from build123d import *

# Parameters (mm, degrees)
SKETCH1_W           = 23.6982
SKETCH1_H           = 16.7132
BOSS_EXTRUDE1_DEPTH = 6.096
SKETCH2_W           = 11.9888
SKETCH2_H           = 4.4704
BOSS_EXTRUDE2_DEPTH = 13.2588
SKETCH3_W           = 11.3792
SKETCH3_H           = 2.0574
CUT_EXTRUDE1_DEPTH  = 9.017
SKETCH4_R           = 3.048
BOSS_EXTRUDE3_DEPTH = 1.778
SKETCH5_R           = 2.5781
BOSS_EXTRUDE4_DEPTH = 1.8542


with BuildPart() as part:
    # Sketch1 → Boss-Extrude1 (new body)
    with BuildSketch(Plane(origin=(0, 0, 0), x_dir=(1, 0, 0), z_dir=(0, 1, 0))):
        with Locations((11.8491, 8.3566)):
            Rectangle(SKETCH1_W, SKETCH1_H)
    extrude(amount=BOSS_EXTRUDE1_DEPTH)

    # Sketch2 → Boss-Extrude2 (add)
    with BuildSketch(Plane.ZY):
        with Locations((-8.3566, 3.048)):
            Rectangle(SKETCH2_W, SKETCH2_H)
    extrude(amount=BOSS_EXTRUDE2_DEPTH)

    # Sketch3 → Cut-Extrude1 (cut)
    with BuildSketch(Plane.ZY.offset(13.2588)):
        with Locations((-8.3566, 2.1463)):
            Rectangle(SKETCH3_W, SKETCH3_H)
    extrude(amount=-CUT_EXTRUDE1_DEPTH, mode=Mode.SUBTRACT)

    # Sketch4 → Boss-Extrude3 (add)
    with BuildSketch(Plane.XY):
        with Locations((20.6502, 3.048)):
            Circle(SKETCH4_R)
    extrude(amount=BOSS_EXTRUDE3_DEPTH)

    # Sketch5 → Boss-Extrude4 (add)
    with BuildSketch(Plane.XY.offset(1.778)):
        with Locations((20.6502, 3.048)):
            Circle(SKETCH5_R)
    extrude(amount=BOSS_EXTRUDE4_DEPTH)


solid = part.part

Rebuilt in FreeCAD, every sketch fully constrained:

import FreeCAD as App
import Part
import Sketcher

V = App.Vector
Q = App.Units.Quantity

doc = App.newDocument("Part")
body = doc.addObject("PartDesign::Body", "Body")

sketch1 = body.newObject("Sketcher::SketchObject", "Sketch")
sketch1.AttachmentSupport = (doc.getObject("XZ_Plane"), [""])
sketch1.MapMode = "FlatFace"
sketch1.addGeometry(Part.LineSegment(V(0, -17, 0), V(0, 0, 0)), False)
sketch1.addGeometry(Part.LineSegment(V(0, 0, 0), V(24, 0, 0)), False)
sketch1.addGeometry(Part.LineSegment(V(24, 0, 0), V(24, -17, 0)), False)
sketch1.addGeometry(Part.LineSegment(V(24, -17, 0), V(0, -17, 0)), False)
sketch1.addConstraint(Sketcher.Constraint("Coincident", 0, 2, 1, 1))
sketch1.addConstraint(Sketcher.Constraint("Coincident", 1, 2, 2, 1))
sketch1.addConstraint(Sketcher.Constraint("Coincident", 2, 2, 3, 1))
sketch1.addConstraint(Sketcher.Constraint("Coincident", 3, 2, 0, 1))
sketch1.addConstraint(Sketcher.Constraint("Vertical", 0))
sketch1.addConstraint(Sketcher.Constraint("Horizontal", 1))
sketch1.addConstraint(Sketcher.Constraint("Vertical", 2))
sketch1.addConstraint(Sketcher.Constraint("Horizontal", 3))
sketch1.addConstraint(Sketcher.Constraint("Coincident", 0, 2, -1, 1))
sketch1.addConstraint(Sketcher.Constraint("DistanceX", 1, 1, 1, 2, Q("0.933 in")))
sketch1.addConstraint(Sketcher.Constraint("DistanceY", 0, 1, 0, 2, Q("0.658 in")))
pad1 = body.newObject("PartDesign::Pad", "Pad")
pad1.Profile = sketch1
pad1.Length = Q("0.24 in")
pad1.Reversed = True

sketch2 = body.newObject("Sketcher::SketchObject", "Sketch001")
sketch2.AttachmentSupport = (doc.getObject("YZ_Plane"), [""])
sketch2.MapMode = "FlatFace"
sketch2.addGeometry(Part.LineSegment(V(5.3, -14.4, 0), V(0.8, -14.4, 0)), False)
sketch2.addGeometry(Part.LineSegment(V(0.8, -14.4, 0), V(0.8, -2.4, 0)), False)
sketch2.addGeometry(Part.LineSegment(V(0.8, -2.4, 0), V(5.3, -2.4, 0)), False)
sketch2.addGeometry(Part.LineSegment(V(5.3, -2.4, 0), V(5.3, -14.4, 0)), False)
sketch2.addConstraint(Sketcher.Constraint("Coincident", 0, 2, 1, 1))
sketch2.addConstraint(Sketcher.Constraint("Coincident", 1, 2, 2, 1))
sketch2.addConstraint(Sketcher.Constraint("Coincident", 2, 2, 3, 1))
sketch2.addConstraint(Sketcher.Constraint("Coincident", 3, 2, 0, 1))
sketch2.addConstraint(Sketcher.Constraint("Horizontal", 0))
sketch2.addConstraint(Sketcher.Constraint("Vertical", 1))
sketch2.addConstraint(Sketcher.Constraint("Horizontal", 2))
sketch2.addConstraint(Sketcher.Constraint("Vertical", 3))
sketch2.addConstraint(Sketcher.Constraint("DistanceX", 0, 2, 0, 1, Q("0.176 in")))
sketch2.addConstraint(Sketcher.Constraint("DistanceY", 1, 1, 1, 2, Q("0.472 in")))
sketch2.addConstraint(Sketcher.Constraint("DistanceX", -1, 1, 0, 2, Q("0.032 in")))
sketch2.addConstraint(Sketcher.Constraint("DistanceY", 0, 2, -1, 1, Q("0.565 in")))
pad2 = body.newObject("PartDesign::Pad", "Pad001")
pad2.Profile = sketch2
pad2.Length = Q("0.522 in")
pad2.Reversed = True

sketch3 = body.newObject("Sketcher::SketchObject", "Sketch002")
sketch3.AttachmentSupport = (doc.getObject("YZ_Plane"), [""])
sketch3.MapMode = "FlatFace"
sketch3.AttachmentOffset = App.Placement(V(0, 0, -0.522 * 25.4), App.Rotation())
sketch3.addGeometry(Part.LineSegment(V(3.2, -14, 0), V(1.1, -14, 0)), False)
sketch3.addGeometry(Part.LineSegment(V(1.1, -14, 0), V(1.1, -2.7, 0)), False)
sketch3.addGeometry(Part.LineSegment(V(1.1, -2.7, 0), V(3.2, -2.7, 0)), False)
sketch3.addGeometry(Part.LineSegment(V(3.2, -2.7, 0), V(3.2, -14, 0)), False)
sketch3.addConstraint(Sketcher.Constraint("Coincident", 0, 2, 1, 1))
sketch3.addConstraint(Sketcher.Constraint("Coincident", 1, 2, 2, 1))
sketch3.addConstraint(Sketcher.Constraint("Coincident", 2, 2, 3, 1))
sketch3.addConstraint(Sketcher.Constraint("Coincident", 3, 2, 0, 1))
sketch3.addConstraint(Sketcher.Constraint("Horizontal", 0))
sketch3.addConstraint(Sketcher.Constraint("Vertical", 1))
sketch3.addConstraint(Sketcher.Constraint("Horizontal", 2))
sketch3.addConstraint(Sketcher.Constraint("Vertical", 3))
sketch3.addConstraint(Sketcher.Constraint("DistanceX", 0, 2, 0, 1, Q("0.081 in")))
sketch3.addConstraint(Sketcher.Constraint("DistanceY", 1, 1, 1, 2, Q("0.448 in")))
sketch3.addConstraint(Sketcher.Constraint("DistanceX", -1, 1, 0, 2, Q("0.044 in")))
sketch3.addConstraint(Sketcher.Constraint("DistanceY", 0, 2, -1, 1, Q("0.553 in")))
pocket1 = body.newObject("PartDesign::Pocket", "Pocket")
pocket1.Profile = sketch3
pocket1.Length = Q("0.355 in")
pocket1.Reversed = True

sketch4 = body.newObject("Sketcher::SketchObject", "Sketch003")
sketch4.AttachmentSupport = (doc.getObject("XY_Plane"), [""])
sketch4.MapMode = "FlatFace"
sketch4.addGeometry(Part.Circle(V(20.7, 3, 0), V(0, 0, 1), 3), False)
sketch4.addConstraint(Sketcher.Constraint("Diameter", 0, Q("0.24 in")))
sketch4.addConstraint(Sketcher.Constraint("DistanceY", -1, 1, 0, 3, Q("0.12 in")))
sketch4.addConstraint(Sketcher.Constraint("DistanceX", -1, 1, 0, 3, Q("0.813 in")))
pad3 = body.newObject("PartDesign::Pad", "Pad002")
pad3.Profile = sketch4
pad3.Length = Q("0.07 in")

sketch5 = body.newObject("Sketcher::SketchObject", "Sketch004")
sketch5.AttachmentSupport = (doc.getObject("XY_Plane"), [""])
sketch5.MapMode = "FlatFace"
sketch5.AttachmentOffset = App.Placement(V(0, 0, 0.07 * 25.4), App.Rotation())
sketch5.addGeometry(Part.Circle(V(20.7, 3, 0), V(0, 0, 1), 2.6), False)
sketch5.addConstraint(Sketcher.Constraint("Diameter", 0, Q("0.203 in")))
sketch5.addConstraint(Sketcher.Constraint("DistanceY", -1, 1, 0, 3, Q("0.12 in")))
sketch5.addConstraint(Sketcher.Constraint("DistanceX", -1, 1, 0, 3, Q("0.813 in")))
pad4 = body.newObject("PartDesign::Pad", "Pad003")
pad4.Profile = sketch5
pad4.Length = Q("0.073 in")

doc.recompute()
